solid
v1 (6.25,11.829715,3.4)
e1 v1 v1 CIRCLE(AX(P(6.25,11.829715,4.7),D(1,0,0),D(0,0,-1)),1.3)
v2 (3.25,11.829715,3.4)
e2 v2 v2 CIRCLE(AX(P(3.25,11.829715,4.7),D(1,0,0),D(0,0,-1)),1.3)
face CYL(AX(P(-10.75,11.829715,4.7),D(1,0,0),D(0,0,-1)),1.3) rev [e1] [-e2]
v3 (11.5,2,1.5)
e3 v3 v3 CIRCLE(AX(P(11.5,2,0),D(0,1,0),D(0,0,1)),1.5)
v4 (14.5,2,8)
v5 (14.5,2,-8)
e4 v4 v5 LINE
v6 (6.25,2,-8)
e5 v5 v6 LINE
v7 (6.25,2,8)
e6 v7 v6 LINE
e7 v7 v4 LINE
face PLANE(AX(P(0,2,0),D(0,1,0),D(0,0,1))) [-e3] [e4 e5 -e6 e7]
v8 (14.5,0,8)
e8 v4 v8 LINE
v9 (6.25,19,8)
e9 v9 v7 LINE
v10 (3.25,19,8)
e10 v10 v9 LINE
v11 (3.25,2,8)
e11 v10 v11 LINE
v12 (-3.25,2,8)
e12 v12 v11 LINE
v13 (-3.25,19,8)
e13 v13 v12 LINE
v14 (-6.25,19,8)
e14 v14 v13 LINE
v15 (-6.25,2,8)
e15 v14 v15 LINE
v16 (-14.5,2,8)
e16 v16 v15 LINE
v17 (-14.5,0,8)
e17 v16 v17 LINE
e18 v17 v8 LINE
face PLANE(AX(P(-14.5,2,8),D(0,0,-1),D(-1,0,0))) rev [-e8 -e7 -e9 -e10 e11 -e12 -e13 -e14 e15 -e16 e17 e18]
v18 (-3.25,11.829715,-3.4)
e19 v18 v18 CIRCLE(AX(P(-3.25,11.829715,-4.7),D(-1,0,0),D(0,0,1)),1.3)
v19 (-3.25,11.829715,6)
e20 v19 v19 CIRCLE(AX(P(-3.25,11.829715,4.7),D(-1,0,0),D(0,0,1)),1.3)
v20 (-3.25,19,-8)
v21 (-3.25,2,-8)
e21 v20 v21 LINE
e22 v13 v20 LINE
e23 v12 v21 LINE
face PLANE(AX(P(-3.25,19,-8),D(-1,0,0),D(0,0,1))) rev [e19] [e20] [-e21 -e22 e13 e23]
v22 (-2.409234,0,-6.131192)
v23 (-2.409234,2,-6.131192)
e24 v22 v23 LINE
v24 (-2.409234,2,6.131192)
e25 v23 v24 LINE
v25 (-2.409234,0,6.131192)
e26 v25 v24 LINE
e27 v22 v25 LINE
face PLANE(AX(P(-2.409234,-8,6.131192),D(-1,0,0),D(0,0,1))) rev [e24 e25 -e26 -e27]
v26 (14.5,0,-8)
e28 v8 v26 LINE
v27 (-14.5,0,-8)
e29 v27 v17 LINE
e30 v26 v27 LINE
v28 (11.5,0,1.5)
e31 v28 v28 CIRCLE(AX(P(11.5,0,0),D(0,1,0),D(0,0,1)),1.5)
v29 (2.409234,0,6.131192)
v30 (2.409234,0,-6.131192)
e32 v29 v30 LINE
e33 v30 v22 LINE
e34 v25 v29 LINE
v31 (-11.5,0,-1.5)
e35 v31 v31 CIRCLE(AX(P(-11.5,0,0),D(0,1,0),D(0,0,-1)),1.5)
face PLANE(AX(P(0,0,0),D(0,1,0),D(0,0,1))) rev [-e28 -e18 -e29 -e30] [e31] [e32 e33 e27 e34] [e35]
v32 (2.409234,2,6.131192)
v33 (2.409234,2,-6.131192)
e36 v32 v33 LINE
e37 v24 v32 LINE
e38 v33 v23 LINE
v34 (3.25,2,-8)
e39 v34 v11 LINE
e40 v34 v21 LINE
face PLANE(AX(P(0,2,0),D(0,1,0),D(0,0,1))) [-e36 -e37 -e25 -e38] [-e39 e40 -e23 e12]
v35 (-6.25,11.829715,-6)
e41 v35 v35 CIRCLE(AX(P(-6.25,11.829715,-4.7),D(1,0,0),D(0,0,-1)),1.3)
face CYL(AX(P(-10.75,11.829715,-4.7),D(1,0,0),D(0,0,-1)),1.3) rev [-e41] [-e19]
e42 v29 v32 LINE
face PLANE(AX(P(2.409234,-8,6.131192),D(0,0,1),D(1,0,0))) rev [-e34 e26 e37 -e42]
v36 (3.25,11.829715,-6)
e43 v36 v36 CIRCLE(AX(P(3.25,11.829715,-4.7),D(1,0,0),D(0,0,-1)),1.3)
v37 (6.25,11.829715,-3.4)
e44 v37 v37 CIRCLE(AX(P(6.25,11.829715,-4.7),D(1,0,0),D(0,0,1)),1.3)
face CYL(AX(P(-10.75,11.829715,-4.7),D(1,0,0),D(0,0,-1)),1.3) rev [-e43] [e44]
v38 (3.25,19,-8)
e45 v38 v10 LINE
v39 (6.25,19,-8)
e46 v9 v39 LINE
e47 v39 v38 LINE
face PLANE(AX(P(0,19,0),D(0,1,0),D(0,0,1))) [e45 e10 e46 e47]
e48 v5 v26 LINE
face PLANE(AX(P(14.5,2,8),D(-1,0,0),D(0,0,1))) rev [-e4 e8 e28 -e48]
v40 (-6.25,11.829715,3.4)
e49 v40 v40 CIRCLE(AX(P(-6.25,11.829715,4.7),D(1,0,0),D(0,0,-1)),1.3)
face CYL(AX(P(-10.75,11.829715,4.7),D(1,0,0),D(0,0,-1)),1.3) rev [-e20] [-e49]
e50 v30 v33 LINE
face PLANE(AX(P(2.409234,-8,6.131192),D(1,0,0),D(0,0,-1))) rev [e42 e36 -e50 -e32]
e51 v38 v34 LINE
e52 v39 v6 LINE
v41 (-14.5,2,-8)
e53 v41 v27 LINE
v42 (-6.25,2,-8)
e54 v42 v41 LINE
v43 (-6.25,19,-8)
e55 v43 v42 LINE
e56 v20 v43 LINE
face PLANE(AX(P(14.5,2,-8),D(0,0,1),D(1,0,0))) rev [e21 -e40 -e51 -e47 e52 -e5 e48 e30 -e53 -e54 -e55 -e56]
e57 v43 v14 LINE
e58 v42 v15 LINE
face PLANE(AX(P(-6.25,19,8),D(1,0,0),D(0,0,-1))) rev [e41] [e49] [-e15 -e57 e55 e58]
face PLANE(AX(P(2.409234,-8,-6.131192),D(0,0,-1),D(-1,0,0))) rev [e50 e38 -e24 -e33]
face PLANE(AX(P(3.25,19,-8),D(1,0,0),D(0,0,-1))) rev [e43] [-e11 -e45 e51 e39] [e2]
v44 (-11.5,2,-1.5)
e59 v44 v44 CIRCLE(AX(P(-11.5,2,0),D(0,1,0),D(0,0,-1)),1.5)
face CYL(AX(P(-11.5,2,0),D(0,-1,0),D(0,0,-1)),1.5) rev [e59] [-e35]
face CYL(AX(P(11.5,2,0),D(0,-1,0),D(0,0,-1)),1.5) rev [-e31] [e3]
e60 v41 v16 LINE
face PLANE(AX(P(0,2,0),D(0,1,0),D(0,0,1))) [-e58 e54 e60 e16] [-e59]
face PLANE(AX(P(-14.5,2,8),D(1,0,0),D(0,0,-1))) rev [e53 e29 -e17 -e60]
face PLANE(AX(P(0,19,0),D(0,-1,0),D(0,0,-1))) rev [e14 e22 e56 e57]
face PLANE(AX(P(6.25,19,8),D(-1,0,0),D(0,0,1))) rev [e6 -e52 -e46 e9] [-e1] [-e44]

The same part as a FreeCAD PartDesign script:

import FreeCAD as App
import Part
import Sketcher

V = App.Vector
Q = App.Units.Quantity


def add_polygon(sketch, points):
    """Adds a closed chain of lines whose ends are joined by coincident constraints."""
    first, n = sketch.GeometryCount, len(points)
    for a, b in zip(points, points[1:] + points[:1]):
        sketch.addGeometry(Part.LineSegment(App.Vector(*a, 0), App.Vector(*b, 0)), False)
    for i in range(n):
        sketch.addConstraint(Sketcher.Constraint("Coincident", first + i, 2, first + (i + 1) % n, 1))

doc = App.newDocument("Part")
body = doc.addObject("PartDesign::Body", "Body")

sketch1 = body.newObject("Sketcher::SketchObject", "Sketch")
sketch1.AttachmentSupport = (doc.getObject("XZ_Plane"), [""])
sketch1.MapMode = "FlatFace"
add_polygon(sketch1, [(-14.5, -8), (-14.5, 8), (14.5, 8), (14.5, -8)])
sketch1.addGeometry(Part.Circle(V(-11.5, 0, 0), V(0, 0, 1), 1.5), False)
sketch1.addGeometry(Part.Circle(V(11.5, 0, 0), V(0, 0, 1), 1.5), False)
sketch1.addConstraint([
    Sketcher.Constraint("Vertical", 0),
    Sketcher.Constraint("Horizontal", 1),
    Sketcher.Constraint("Vertical", 2),
    Sketcher.Constraint("Horizontal", 3),
    Sketcher.Constraint("Equal", 4, 5),
    Sketcher.Constraint("Symmetric", 4, 3, 5, 3, -1, 1),
    Sketcher.Constraint("Symmetric", 0, 2, 2, 2, -1, 1),
    Sketcher.Constraint("PointOnObject", 4, 3, -1),
    Sketcher.Constraint("Diameter", 4, Q("3 mm")),
    Sketcher.Constraint("DistanceX", 1, 1, 1, 2, Q("29 mm")),
    Sketcher.Constraint("DistanceY", 0, 1, 0, 2, Q("16 mm")),
    Sketcher.Constraint("DistanceX", 4, 3, 5, 3, Q("23 mm")),
])
pad1 = body.newObject("PartDesign::Pad", "Pad")
pad1.Profile = sketch1
pad1.Length = 2
pad1.Reversed = True

sketch2 = body.newObject("Sketcher::SketchObject", "Sketch001")
sketch2.AttachmentSupport = (doc.getObject("XZ_Plane"), [""])
sketch2.MapMode = "FlatFace"
sketch2.AttachmentOffset = App.Placement(V(0, 0, -2), App.Rotation())
add_polygon(sketch2, [(3.2, -8), (3.2, 8), (6.2, 8), (6.2, -8)])
add_polygon(sketch2, [(-6.2, -8), (-6.2, 8), (-3.2, 8), (-3.2, -8)])
sketch2.addConstraint([
    Sketcher.Constraint("Vertical", 0),
    Sketcher.Constraint("Horizontal", 1),
    Sketcher.Constraint("Vertical", 2),
    Sketcher.Constraint("Horizontal", 3),
    Sketcher.Constraint("Vertical", 4),
    Sketcher.Constraint("Horizontal", 5),
    Sketcher.Constraint("Vertical", 6),
    Sketcher.Constraint("Horizontal", 7),
    Sketcher.Constraint("Symmetric", 2, 2, 4, 2, -1, 1),
    Sketcher.Constraint("Symmetric", 0, 2, 6, 2, -1, 1),
    Sketcher.Constraint("Horizontal", 1, 2, 4, 2),
    Sketcher.Constraint("DistanceX", 1, 1, 1, 2, Q("3 mm")),
    Sketcher.Constraint("DistanceY", 0, 1, 0, 2, Q("16 mm")),
    Sketcher.Constraint("DistanceX", 4, 2, 0, 2, Q("9.5 mm")),
])
pad2 = body.newObject("PartDesign::Pad", "Pad001")
pad2.Profile = sketch2
pad2.Length = 17
pad2.Reversed = True

sketch3 = body.newObject("Sketcher::SketchObject", "Sketch002")
sketch3.AttachmentSupport = (doc.getObject("YZ_Plane"), [""])
sketch3.MapMode = "FlatFace"
sketch3.AttachmentOffset = App.Placement(V(0, 0, 6.25), App.Rotation())
sketch3.addGeometry([
    Part.Circle(V(11.8, 4.7, 0), V(0, 0, 1), 1.3),
    Part.Circle(V(11.8, -4.7, 0), V(0, 0, 1), 1.3),
], False)
sketch3.addConstraint([
    Sketcher.Constraint("Equal", 0, 1),
    Sketcher.Constraint("Symmetric", 0, 3, 1, 3, -1),
    Sketcher.Constraint("Diameter", 0, Q("2.6 mm")),
    Sketcher.Constraint("DistanceY", -1, 1, 0, 3, Q("4.7 mm")),
    Sketcher.Constraint("DistanceX", -1, 1, 0, 3, Q("11.829715 mm")),
])
pocket1 = body.newObject("PartDesign::Pocket", "Pocket")
pocket1.Profile = sketch3
pocket1.Length = 17

sketch4 = body.newObject("Sketcher::SketchObject", "Sketch003")
sketch4.AttachmentSupport = (doc.getObject("XZ_Plane"), [""])
sketch4.MapMode = "FlatFace"
sketch4.AttachmentOffset = App.Placement(V(0, 0, -2), App.Rotation())
add_polygon(sketch4, [(-2.4, -6.1), (-2.4, 6.1), (2.4, 6.1), (2.4, -6.1)])
sketch4.addConstraint([
    Sketcher.Constraint("Vertical", 0),
    Sketcher.Constraint("Horizontal", 1),
    Sketcher.Constraint("Vertical", 2),
    Sketcher.Constraint("Horizontal", 3),
    Sketcher.Constraint("Symmetric", 0, 2, 2, 2, -1, 1),
    Sketcher.Constraint("DistanceX", 1, 1, 1, 2, Q("4.818468 mm")),
    Sketcher.Constraint("DistanceY", 0, 1, 0, 2, Q("12.262384 mm")),
])
pocket2 = body.newObject("PartDesign::Pocket", "Pocket001")
pocket2.Profile = sketch4
pocket2.Length = 10
pocket2.Reversed = True

doc.recompute()
